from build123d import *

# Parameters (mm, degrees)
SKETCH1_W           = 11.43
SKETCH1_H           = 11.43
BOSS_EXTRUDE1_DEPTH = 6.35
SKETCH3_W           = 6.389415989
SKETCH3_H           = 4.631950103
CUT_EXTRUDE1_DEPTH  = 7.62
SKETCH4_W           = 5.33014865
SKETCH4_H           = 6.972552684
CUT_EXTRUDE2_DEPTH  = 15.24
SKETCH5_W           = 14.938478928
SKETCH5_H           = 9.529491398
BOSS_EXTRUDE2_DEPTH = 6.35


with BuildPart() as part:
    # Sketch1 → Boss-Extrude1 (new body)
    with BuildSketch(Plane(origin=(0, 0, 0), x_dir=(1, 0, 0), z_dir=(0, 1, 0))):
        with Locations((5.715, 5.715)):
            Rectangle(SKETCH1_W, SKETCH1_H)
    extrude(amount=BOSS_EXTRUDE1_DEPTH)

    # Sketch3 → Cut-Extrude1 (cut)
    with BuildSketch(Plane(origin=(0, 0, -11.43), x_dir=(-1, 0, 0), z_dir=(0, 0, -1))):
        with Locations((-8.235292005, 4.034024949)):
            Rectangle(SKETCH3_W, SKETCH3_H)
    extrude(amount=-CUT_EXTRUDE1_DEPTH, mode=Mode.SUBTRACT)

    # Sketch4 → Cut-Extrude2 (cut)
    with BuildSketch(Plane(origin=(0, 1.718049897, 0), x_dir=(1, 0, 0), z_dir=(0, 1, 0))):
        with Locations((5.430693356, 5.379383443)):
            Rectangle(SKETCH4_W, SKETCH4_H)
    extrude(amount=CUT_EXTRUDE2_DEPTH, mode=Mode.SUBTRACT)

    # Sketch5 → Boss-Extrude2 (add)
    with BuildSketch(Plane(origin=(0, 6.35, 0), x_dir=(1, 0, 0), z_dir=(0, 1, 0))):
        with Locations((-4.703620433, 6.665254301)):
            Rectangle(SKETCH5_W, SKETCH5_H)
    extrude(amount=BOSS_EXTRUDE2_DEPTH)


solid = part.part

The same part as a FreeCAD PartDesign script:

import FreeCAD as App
import Part
import Sketcher
from FreeCAD import Vector
Q = App.Units.Quantity

doc = App.newDocument("Part")
body = doc.addObject("PartDesign::Body", "Body")

# Sketch on XZ plane
sketch1 = body.newObject("Sketcher::SketchObject", "Sketch")
sketch1.AttachmentSupport = (doc.getObject("XZ_Plane"), [""])
sketch1.MapMode = "FlatFace"
sketch1.addGeometry([
    Part.LineSegment(Vector(0, -11, 0), Vector(0, 0, 0)),
    Part.LineSegment(Vector(0, 0, 0), Vector(11, 0, 0)),
    Part.LineSegment(Vector(11, 0, 0), Vector(11, -11, 0)),
    Part.LineSegment(Vector(11, -11, 0), Vector(0, -11, 0)),
], False)
sketch1.addConstraint([
    Sketcher.Constraint("Coincident", 0, 2, 1, 1),
    Sketcher.Constraint("Coincident", 1, 2, 2, 1),
    Sketcher.Constraint("Coincident", 2, 2, 3, 1),
    Sketcher.Constraint("Coincident", 3, 2, 0, 1),
    Sketcher.Constraint("Vertical", 0),
    Sketcher.Constraint("Horizontal", 1),
    Sketcher.Constraint("Vertical", 2),
    Sketcher.Constraint("Horizontal", 3),
    Sketcher.Constraint("Coincident", 0, 2, -1, 1),
    Sketcher.Constraint("Equal", 3, 0),
    Sketcher.Constraint("DistanceX", 1, 1, 1, 2, Q("0.45 in")),
])
pad1 = body.newObject("PartDesign::Pad", "Pad")
pad1.Profile = sketch1
pad1.Length = Q("0.25 in")
pad1.Reversed = True

# Sketch on XY plane
sketch2 = body.newObject("Sketcher::SketchObject", "Sketch001")
sketch2.AttachmentSupport = (doc.getObject("XY_Plane"), [""])
sketch2.MapMode = "FlatFace"
sketch2.AttachmentOffset = App.Placement(Vector(0, 0, -0.45 * 25.4), App.Rotation())
sketch2.addGeometry([
    Part.LineSegment(Vector(11.4, 6.3, 0), Vector(11.4, 1.7, 0)),
    Part.LineSegment(Vector(11.4, 1.7, 0), Vector(5, 1.7, 0)),
    Part.LineSegment(Vector(5, 1.7, 0), Vector(5, 6.3, 0)),
    Part.LineSegment(Vector(5, 6.3, 0), Vector(11.4, 6.3, 0)),
], False)
sketch2.addConstraint([
    Sketcher.Constraint("Coincident", 0, 2, 1, 1),
    Sketcher.Constraint("Coincident", 1, 2, 2, 1),
    Sketcher.Constraint("Coincident", 2, 2, 3, 1),
    Sketcher.Constraint("Coincident", 3, 2, 0, 1),
    Sketcher.Constraint("Vertical", 0),
    Sketcher.Constraint("Horizontal", 1),
    Sketcher.Constraint("Vertical", 2),
    Sketcher.Constraint("Horizontal", 3),
    Sketcher.Constraint("DistanceX", -1, 1, 0, 2, Q("0.45 in")),
    Sketcher.Constraint("DistanceY", -1, 1, 2, 2, Q("0.25 in")),
    Sketcher.Constraint("DistanceY", 0, 2, 0, 1, 4.63195),
    Sketcher.Constraint("DistanceX", 1, 2, 1, 1, 6.389416),
])
pocket1 = body.newObject("PartDesign::Pocket", "Pocket")
pocket1.Profile = sketch2
pocket1.Length = Q("0.3 in")
pocket1.Reversed = True

# Sketch on XZ plane
sketch3 = body.newObject("Sketcher::SketchObject", "Sketch002")
sketch3.AttachmentSupport = (doc.getObject("XZ_Plane"), [""])
sketch3.MapMode = "FlatFace"
sketch3.AttachmentOffset = App.Placement(Vector(0, 0, -1.71805), App.Rotation())
sketch3.addGeometry([
    Part.LineSegment(Vector(3, -9, 0), Vector(3, -2, 0)),
    Part.LineSegment(Vector(3, -2, 0), Vector(8, -2, 0)),
    Part.LineSegment(Vector(8, -2, 0), Vector(8, -9, 0)),
    Part.LineSegment(Vector(8, -9, 0), Vector(3, -9, 0)),
], False)
sketch3.addConstraint([
    Sketcher.Constraint("Coincident", 0, 2, 1, 1),
    Sketcher.Constraint("Coincident", 1, 2, 2, 1),
    Sketcher.Constraint("Coincident", 2, 2, 3, 1),
    Sketcher.Constraint("Coincident", 3, 2, 0, 1),
    Sketcher.Constraint("Vertical", 0),
    Sketcher.Constraint("Horizontal", 1),
    Sketcher.Constraint("Vertical", 2),
    Sketcher.Constraint("Horizontal", 3),
    Sketcher.Constraint("DistanceX", 1, 1, 1, 2, 5.330149),
    Sketcher.Constraint("DistanceY", 0, 1, 0, 2, 6.972553),
    Sketcher.Constraint("DistanceX", -1, 1, 0, 2, 2.765619),
    Sketcher.Constraint("DistanceY", 2, 2, -1, 1, 8.86566),
])
pocket2 = body.newObject("PartDesign::Pocket", "Pocket001")
pocket2.Profile = sketch3
pocket2.Length = Q("0.6 in")

# Sketch on XZ plane
sketch4 = body.newObject("Sketcher::SketchObject", "Sketch003")
sketch4.AttachmentSupport = (doc.getObject("XZ_Plane"), [""])
sketch4.MapMode = "FlatFace"
sketch4.AttachmentOffset = App.Placement(Vector(0, 0, -0.25 * 25.4), App.Rotation())
sketch4.addGeometry([
    Part.LineSegment(Vector(-12, -11, 0), Vector(-12, -2, 0)),
    Part.LineSegment(Vector(-12, -2, 0), Vector(3, -2, 0)),
    Part.LineSegment(Vector(3, -2, 0), Vector(3, -11, 0)),
    Part.LineSegment(Vector(3, -11, 0), Vector(-12, -11, 0)),
], False)
sketch4.addConstraint([
    Sketcher.Constraint("Coincident", 0, 2, 1, 1),
    Sketcher.Constraint("Coincident", 1, 2, 2, 1),
    Sketcher.Constraint("Coincident", 2, 2, 3, 1),
    Sketcher.Constraint("Coincident", 3, 2, 0, 1),
    Sketcher.Constraint("Vertical", 0),
    Sketcher.Constraint("Horizontal", 1),
    Sketcher.Constraint("Vertical", 2),
    Sketcher.Constraint("Horizontal", 3),
    Sketcher.Constraint("DistanceY", 2, 2, -1, 1, Q("0.45 in")),
    Sketcher.Constraint("DistanceX", 1, 1, 1, 2, 14.938479),
    Sketcher.Constraint("DistanceY", 0, 1, 0, 2, 9.529491),
    Sketcher.Constraint("DistanceX", 0, 2, -1, 1, 12.17286),
])
pad2 = body.newObject("PartDesign::Pad", "Pad001")
pad2.Profile = sketch4
pad2.Length = Q("0.25 in")
pad2.Reversed = True

doc.recompute()
